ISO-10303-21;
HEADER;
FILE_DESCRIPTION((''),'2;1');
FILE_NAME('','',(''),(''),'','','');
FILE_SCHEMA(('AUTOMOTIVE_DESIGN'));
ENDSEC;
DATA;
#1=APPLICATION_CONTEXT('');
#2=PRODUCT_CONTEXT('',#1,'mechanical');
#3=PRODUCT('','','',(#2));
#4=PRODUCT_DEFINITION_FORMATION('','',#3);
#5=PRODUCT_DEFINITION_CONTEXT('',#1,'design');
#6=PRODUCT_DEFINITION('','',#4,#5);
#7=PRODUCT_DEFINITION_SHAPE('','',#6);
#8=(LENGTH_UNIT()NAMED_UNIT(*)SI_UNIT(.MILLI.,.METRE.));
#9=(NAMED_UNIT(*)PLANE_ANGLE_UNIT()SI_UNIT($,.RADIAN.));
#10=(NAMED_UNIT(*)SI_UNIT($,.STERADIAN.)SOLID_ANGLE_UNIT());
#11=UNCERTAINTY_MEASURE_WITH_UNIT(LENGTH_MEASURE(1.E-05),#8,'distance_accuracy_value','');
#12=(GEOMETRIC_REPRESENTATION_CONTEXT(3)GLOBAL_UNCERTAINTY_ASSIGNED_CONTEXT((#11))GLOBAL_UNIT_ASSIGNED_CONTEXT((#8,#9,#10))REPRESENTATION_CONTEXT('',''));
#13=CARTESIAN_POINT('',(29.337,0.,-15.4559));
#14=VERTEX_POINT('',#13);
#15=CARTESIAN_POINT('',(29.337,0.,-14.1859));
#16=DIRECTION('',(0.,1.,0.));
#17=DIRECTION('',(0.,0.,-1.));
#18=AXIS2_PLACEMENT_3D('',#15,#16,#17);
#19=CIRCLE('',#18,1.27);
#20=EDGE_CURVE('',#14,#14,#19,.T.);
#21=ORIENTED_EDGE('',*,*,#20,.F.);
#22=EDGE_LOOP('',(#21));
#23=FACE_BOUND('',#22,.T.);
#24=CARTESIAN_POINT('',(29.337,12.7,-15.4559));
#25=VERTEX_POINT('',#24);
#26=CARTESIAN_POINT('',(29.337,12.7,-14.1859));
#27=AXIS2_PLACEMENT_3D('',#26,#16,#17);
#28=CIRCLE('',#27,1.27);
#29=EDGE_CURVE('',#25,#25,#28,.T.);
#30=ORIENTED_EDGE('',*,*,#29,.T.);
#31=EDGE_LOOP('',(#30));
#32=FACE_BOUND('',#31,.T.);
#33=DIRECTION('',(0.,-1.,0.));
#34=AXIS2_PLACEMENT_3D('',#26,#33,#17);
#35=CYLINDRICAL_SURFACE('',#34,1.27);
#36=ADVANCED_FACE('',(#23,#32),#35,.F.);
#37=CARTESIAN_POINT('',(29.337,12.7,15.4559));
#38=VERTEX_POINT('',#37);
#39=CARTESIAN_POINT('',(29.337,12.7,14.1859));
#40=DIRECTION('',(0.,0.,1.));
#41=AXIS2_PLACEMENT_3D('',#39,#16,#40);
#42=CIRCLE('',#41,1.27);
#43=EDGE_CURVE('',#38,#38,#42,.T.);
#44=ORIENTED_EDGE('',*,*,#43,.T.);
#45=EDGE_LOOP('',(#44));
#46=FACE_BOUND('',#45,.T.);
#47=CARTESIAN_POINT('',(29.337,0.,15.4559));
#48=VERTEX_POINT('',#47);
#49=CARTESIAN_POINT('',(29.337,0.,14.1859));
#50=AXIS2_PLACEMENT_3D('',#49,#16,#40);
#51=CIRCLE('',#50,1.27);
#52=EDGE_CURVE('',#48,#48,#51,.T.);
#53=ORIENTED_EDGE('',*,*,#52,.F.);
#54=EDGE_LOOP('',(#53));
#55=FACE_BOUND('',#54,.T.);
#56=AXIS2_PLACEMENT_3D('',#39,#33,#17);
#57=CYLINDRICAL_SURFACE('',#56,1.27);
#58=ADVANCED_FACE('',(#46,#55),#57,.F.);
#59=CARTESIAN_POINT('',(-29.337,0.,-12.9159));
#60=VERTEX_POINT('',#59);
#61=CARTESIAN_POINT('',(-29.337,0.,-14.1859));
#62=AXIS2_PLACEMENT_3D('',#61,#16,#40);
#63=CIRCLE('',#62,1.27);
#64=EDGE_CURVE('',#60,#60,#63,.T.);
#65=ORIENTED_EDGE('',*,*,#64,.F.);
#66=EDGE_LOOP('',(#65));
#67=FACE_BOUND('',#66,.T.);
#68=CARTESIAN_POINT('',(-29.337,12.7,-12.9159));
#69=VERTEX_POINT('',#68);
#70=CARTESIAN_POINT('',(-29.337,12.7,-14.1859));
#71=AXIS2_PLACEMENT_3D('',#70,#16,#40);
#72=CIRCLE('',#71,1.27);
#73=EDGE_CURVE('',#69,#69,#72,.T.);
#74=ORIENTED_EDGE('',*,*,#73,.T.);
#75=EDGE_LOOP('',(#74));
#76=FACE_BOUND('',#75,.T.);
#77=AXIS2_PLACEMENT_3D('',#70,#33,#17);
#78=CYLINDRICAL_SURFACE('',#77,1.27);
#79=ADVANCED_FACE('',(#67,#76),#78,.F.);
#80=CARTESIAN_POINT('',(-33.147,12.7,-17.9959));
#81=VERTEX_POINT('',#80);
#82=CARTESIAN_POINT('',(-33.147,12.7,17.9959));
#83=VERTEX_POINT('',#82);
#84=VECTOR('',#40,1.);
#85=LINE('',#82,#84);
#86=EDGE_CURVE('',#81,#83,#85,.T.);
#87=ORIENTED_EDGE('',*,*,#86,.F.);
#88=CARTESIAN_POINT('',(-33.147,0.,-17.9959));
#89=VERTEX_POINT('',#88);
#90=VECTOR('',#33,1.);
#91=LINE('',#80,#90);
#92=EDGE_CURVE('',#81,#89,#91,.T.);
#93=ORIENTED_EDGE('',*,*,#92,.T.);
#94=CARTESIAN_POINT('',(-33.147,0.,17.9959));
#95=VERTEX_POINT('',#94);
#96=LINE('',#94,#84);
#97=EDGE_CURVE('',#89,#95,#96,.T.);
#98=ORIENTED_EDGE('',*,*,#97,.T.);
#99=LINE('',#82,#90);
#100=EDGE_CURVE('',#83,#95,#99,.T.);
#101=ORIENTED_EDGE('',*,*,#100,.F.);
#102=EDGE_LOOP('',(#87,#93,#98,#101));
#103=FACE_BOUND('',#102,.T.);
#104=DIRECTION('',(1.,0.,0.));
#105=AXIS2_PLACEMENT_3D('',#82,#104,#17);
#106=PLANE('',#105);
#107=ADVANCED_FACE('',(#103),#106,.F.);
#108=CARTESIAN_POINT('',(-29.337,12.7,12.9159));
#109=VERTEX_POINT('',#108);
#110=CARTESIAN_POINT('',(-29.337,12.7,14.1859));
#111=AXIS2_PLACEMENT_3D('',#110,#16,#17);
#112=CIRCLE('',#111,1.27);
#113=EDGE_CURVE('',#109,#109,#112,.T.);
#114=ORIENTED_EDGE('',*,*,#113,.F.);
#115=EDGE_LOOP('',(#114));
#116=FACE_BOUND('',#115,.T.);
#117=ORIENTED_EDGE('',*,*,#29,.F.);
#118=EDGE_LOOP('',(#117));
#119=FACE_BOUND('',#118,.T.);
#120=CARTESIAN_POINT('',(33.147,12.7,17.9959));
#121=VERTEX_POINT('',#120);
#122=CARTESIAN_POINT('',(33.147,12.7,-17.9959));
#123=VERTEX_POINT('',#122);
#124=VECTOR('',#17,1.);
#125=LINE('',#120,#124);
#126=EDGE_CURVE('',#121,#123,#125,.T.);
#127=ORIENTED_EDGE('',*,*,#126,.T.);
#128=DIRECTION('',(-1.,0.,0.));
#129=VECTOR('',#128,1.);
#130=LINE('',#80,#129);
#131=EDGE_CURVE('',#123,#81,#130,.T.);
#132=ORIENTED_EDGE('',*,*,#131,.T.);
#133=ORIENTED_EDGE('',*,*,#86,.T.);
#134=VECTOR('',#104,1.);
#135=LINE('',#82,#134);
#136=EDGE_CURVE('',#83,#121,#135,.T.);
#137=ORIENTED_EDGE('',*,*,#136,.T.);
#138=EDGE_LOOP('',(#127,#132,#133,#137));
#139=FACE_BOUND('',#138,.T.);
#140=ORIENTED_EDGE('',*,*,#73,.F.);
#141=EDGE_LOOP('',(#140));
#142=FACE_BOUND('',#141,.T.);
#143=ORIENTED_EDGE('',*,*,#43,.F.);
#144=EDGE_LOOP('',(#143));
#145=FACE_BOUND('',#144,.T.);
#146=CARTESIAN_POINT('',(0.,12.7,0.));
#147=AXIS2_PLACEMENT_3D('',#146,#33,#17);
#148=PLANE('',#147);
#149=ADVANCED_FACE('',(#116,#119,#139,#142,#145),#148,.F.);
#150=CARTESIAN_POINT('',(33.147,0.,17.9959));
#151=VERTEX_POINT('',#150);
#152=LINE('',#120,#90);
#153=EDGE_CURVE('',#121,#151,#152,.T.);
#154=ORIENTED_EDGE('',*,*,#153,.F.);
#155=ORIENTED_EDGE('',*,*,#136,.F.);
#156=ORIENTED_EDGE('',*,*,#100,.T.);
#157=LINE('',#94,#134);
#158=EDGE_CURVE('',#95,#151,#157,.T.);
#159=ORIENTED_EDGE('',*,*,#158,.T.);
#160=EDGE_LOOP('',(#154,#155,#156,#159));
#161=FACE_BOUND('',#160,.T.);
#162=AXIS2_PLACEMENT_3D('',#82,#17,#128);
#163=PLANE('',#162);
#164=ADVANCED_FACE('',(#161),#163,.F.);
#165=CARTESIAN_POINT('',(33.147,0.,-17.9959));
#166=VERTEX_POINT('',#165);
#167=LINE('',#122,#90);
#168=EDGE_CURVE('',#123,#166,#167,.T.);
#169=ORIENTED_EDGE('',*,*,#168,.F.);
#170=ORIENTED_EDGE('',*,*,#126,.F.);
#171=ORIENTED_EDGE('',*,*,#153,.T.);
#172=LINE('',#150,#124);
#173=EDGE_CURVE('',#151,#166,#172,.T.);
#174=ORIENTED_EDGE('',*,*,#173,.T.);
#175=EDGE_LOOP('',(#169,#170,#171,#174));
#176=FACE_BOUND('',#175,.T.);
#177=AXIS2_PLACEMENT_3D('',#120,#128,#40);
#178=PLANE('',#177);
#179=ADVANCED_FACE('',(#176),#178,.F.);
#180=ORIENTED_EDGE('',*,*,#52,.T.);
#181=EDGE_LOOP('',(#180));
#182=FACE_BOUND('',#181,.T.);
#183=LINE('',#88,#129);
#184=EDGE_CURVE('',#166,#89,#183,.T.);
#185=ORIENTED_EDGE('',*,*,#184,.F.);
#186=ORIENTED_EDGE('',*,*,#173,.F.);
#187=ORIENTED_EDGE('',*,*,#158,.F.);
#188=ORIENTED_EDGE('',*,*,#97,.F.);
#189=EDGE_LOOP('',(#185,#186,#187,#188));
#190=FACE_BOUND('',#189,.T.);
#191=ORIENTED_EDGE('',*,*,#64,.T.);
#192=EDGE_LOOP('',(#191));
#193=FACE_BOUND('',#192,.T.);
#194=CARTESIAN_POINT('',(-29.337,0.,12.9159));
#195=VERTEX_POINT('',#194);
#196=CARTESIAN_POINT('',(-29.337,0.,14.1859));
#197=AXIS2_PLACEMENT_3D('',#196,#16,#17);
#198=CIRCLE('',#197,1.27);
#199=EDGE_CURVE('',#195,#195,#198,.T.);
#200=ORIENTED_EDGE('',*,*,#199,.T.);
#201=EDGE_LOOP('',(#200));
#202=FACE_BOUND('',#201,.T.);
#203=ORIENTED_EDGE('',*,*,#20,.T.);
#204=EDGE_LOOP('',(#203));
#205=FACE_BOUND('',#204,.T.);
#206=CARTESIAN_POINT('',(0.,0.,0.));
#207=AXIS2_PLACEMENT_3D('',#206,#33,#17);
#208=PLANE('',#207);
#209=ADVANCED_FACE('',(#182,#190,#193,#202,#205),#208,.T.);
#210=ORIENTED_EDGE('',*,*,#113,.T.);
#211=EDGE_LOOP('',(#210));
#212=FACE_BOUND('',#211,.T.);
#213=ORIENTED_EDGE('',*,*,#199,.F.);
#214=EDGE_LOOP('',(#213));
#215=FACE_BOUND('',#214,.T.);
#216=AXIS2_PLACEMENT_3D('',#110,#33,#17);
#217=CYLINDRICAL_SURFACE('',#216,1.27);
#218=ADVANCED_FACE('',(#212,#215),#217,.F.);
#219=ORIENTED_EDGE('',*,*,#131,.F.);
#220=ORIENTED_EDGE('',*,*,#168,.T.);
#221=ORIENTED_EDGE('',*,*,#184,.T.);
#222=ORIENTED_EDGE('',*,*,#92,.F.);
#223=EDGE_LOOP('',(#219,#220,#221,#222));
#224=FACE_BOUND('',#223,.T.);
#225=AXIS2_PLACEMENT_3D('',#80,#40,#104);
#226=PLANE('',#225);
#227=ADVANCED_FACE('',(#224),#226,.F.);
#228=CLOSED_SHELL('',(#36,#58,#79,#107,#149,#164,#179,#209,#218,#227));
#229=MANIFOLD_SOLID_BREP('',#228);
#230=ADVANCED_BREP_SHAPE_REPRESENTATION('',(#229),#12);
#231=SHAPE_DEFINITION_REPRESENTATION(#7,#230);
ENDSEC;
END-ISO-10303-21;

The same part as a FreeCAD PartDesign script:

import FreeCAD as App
import Part
import Sketcher
from FreeCAD import Vector
Q = App.Units.Quantity

doc = App.newDocument("Part")
body = doc.addObject("PartDesign::Body", "Body")

sketch1 = doc.addObject("Sketcher::SketchObject", "Sketch")
body.addObject(sketch1)
sketch1.AttachmentSupport = (doc.XZ_Plane, [""])
sketch1.MapMode = "FlatFace"
sketch1.addGeometry([
    Part.LineSegment(Vector(-33.147, -17.9959, 0), Vector(-33.147, 17.9959, 0)),
    Part.LineSegment(Vector(-33.147, 17.9959, 0), Vector(33.147, 17.9959, 0)),
    Part.LineSegment(Vector(33.147, 17.9959, 0), Vector(33.147, -17.9959, 0)),
    Part.LineSegment(Vector(33.147, -17.9959, 0), Vector(-33.147, -17.9959, 0)),
    Part.Circle(Vector(-29.337, 14.1859, 0), Vector(0, 0, 1), 1.27),
    Part.Circle(Vector(29.337, 14.1859, 0), Vector(0, 0, 1), 1.27),
    Part.Circle(Vector(-29.337, -14.1859, 0), Vector(0, 0, 1), 1.27),
    Part.Circle(Vector(29.337, -14.1859, 0), Vector(0, 0, 1), 1.27),
], False)
sketch1.addConstraint([
    Sketcher.Constraint("Coincident", 0, 2, 1, 1),
    Sketcher.Constraint("Coincident", 1, 2, 2, 1),
    Sketcher.Constraint("Coincident", 2, 2, 3, 1),
    Sketcher.Constraint("Coincident", 3, 2, 0, 1),
    Sketcher.Constraint("Vertical", 0),
    Sketcher.Constraint("Horizontal", 1),
    Sketcher.Constraint("Vertical", 2),
    Sketcher.Constraint("Horizontal", 3),
    Sketcher.Constraint("Equal", 4, 5),
    Sketcher.Constraint("Equal", 5, 6),
    Sketcher.Constraint("Equal", 6, 7),
    Sketcher.Constraint("Symmetric", 5, 3, 6, 3, -1, 1),
    Sketcher.Constraint("Symmetric", 4, 3, 7, 3, -1, 1),
    Sketcher.Constraint("Symmetric", 0, 2, 2, 2, -1, 1),
    Sketcher.Constraint("Symmetric", 4, 3, 5, 3, -2),
    Sketcher.Constraint("Diameter", 4, Q("0.1 in")),
    Sketcher.Constraint("DistanceX", 1, 1, 1, 2, Q("2.61 in")),
    Sketcher.Constraint("DistanceY", 0, 1, 0, 2, Q("1.417 in")),
    Sketcher.Constraint("DistanceX", 4, 3, 5, 3, Q("2.31 in")),
    Sketcher.Constraint("DistanceY", 4, 3, 0, 2, Q("0.15 in")),
])
pad1 = doc.addObject("PartDesign::Pad", "Pad")
body.addObject(pad1)
pad1.Profile = sketch1
pad1.Length = Q("0.5 in")
pad1.Reversed = True

doc.recompute()
